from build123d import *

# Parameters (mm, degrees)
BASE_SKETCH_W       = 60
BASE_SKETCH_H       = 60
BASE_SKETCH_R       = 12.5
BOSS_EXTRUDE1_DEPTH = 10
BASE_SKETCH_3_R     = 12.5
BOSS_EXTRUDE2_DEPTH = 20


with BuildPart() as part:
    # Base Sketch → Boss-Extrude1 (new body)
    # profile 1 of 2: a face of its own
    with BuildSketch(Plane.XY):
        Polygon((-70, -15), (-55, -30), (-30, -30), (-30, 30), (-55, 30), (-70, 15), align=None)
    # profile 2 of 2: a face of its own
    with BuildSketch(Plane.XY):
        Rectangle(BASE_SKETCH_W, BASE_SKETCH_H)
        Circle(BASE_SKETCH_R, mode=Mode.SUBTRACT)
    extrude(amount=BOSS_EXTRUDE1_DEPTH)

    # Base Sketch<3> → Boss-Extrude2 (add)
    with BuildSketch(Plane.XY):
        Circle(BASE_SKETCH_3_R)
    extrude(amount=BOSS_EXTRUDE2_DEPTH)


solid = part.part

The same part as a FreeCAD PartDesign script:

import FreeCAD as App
import Part
import Sketcher
from FreeCAD import Vector

doc = App.newDocument("Part")
body = doc.addObject("PartDesign::Body", "Body")

sketch1 = doc.addObject("Sketcher::SketchObject", "Sketch")
body.addObject(sketch1)
sketch1.AttachmentSupport = (doc.XY_Plane, [""])
sketch1.MapMode = "FlatFace"
sketch1.addGeometry([
    Part.LineSegment(Vector(-70, -15, 0), Vector(-55, -30, 0)),
    Part.LineSegment(Vector(-55, -30, 0), Vector(30, -30, 0)),
    Part.LineSegment(Vector(30, -30, 0), Vector(30, 30, 0)),
    Part.LineSegment(Vector(30, 30, 0), Vector(-55, 30, 0)),
    Part.LineSegment(Vector(-55, 30, 0), Vector(-70, 15, 0)),
    Part.LineSegment(Vector(-70, 15, 0), Vector(-70, -15, 0)),
    Part.Circle(Vector(0, 0, 0), Vector(0, 0, 1), 12),
], False)
sketch1.addConstraint([
    Sketcher.Constraint("Coincident", 0, 2, 1, 1),
    Sketcher.Constraint("Coincident", 1, 2, 2, 1),
    Sketcher.Constraint("Coincident", 2, 2, 3, 1),
    Sketcher.Constraint("Coincident", 3, 2, 4, 1),
    Sketcher.Constraint("Coincident", 4, 2, 5, 1),
    Sketcher.Constraint("Coincident", 5, 2, 0, 1),
    Sketcher.Constraint("Horizontal", 1),
    Sketcher.Constraint("Vertical", 2),
    Sketcher.Constraint("Horizontal", 3),
    Sketcher.Constraint("Vertical", 5),
    Sketcher.Constraint("Coincident", 6, 3, -1, 1),
    Sketcher.Constraint("Symmetric", 0, 2, 3, 2, -1),
    Sketcher.Constraint("Perpendicular", 0, 4),
    Sketcher.Constraint("Equal", 0, 4),
    Sketcher.Constraint("Diameter", 6, 25.0),
    Sketcher.Constraint("DistanceX", 1, 1, 1, 2, 85.0),
    Sketcher.Constraint("DistanceY", 2, 1, 2, 2, 60.0),
    Sketcher.Constraint("DistanceY", 5, 2, 5, 1, 30.0),
    Sketcher.Constraint("DistanceX", 0, 2, -1, 1, 55.0),
])
pad1 = doc.addObject("PartDesign::Pad", "Pad")
body.addObject(pad1)
pad1.Profile = sketch1
pad1.Length = 10

sketch2 = doc.addObject("Sketcher::SketchObject", "Sketch001")
body.addObject(sketch2)
sketch2.AttachmentSupport = (doc.XY_Plane, [""])
sketch2.MapMode = "FlatFace"
sketch2.addGeometry(Part.Circle(Vector(0, 0, 0), Vector(0, 0, 1), 12), False)
sketch2.addConstraint([
    Sketcher.Constraint("Coincident", 0, 3, -1, 1),
    Sketcher.Constraint("Diameter", 0, 25.0),
])
pad2 = doc.addObject("PartDesign::Pad", "Pad001")
body.addObject(pad2)
pad2.Profile = sketch2
pad2.Length = 20

doc.recompute()
